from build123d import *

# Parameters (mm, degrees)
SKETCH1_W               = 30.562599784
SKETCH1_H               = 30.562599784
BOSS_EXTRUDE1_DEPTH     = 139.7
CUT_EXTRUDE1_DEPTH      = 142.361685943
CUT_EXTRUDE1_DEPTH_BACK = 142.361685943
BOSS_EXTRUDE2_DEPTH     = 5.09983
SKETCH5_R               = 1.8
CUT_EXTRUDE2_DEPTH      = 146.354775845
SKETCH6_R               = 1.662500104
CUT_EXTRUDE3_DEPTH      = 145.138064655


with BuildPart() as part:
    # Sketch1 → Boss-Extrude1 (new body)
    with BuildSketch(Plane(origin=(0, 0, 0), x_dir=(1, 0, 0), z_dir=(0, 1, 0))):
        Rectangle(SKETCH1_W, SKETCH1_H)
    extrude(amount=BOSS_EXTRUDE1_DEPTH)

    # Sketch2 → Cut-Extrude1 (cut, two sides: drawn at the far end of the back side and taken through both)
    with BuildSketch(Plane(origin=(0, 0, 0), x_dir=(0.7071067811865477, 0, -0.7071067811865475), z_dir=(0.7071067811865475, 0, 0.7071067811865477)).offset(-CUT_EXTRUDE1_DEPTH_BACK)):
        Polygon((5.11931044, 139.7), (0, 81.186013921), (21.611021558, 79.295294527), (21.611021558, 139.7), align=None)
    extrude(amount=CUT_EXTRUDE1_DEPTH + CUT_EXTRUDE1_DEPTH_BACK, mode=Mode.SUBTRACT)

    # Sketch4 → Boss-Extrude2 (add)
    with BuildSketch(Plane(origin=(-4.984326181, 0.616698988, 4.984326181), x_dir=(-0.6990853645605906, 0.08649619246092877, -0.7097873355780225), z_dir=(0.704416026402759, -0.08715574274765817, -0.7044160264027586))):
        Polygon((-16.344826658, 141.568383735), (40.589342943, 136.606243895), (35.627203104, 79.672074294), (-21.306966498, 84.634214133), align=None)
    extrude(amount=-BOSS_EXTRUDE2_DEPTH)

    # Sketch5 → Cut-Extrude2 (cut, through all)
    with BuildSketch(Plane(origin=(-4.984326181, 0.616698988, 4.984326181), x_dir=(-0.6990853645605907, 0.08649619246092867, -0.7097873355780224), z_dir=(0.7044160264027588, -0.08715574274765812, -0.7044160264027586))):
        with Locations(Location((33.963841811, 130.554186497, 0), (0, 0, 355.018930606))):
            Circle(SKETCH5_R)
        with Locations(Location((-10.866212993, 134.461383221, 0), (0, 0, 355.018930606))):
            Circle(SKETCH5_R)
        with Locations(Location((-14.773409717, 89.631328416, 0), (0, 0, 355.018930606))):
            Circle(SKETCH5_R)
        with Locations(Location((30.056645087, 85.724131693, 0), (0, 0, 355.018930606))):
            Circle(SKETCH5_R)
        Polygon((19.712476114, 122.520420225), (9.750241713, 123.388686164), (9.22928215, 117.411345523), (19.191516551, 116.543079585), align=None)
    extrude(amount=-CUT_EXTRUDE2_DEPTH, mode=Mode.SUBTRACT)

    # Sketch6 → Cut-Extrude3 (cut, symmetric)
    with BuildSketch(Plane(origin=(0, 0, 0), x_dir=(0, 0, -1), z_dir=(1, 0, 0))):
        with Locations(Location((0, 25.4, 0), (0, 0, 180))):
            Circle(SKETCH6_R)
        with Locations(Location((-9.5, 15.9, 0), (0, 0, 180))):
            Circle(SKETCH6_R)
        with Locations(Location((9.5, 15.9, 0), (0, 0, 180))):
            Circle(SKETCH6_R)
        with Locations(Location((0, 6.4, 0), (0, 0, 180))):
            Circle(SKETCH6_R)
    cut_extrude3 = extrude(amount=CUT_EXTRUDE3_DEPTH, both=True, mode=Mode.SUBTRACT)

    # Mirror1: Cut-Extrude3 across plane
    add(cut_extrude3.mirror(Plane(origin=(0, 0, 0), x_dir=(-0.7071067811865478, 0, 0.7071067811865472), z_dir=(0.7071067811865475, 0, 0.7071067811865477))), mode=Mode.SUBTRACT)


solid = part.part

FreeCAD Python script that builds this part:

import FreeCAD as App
import Part
import Sketcher
Q = App.Units.Quantity


def add_polygon(sketch, points):
    """Adds a closed chain of lines whose ends are joined by coincident constraints."""
    first, n = sketch.GeometryCount, len(points)
    for a, b in zip(points, points[1:] + points[:1]):
        sketch.addGeometry(Part.LineSegment(App.Vector(*a, 0), App.Vector(*b, 0)), False)
    for i in range(n):
        sketch.addConstraint(Sketcher.Constraint("Coincident", first + i, 2, first + (i + 1) % n, 1))

doc = App.newDocument("Part")
body = doc.addObject("PartDesign::Body", "Body")

# Sketch on XZ plane
sketch1 = doc.addObject("Sketcher::SketchObject", "Sketch")
body.addObject(sketch1)
sketch1.AttachmentSupport = (doc.XZ_Plane, [""])
sketch1.MapMode = "FlatFace"
add_polygon(sketch1, [(-15, -15), (-15, 15), (15, 15), (15, -15)])  # lines 0-3
sketch1.addConstraint(Sketcher.Constraint("Vertical", 0))
sketch1.addConstraint(Sketcher.Constraint("Horizontal", 1))
sketch1.addConstraint(Sketcher.Constraint("Vertical", 2))
sketch1.addConstraint(Sketcher.Constraint("Horizontal", 3))
sketch1.addConstraint(Sketcher.Constraint("Symmetric", 0, 2, 2, 2, -1, 1))
sketch1.addConstraint(Sketcher.Constraint("Equal", 3, 0))
sketch1.addConstraint(Sketcher.Constraint("DistanceX", 1, 1, 1, 2, 30.5626))
pad1 = doc.addObject("PartDesign::Pad", "Pad")
body.addObject(pad1)
pad1.Profile = sketch1
pad1.Length = 139.7
pad1.Reversed = True

# Sketch on an angled plane
sketch2 = doc.addObject("Sketcher::SketchObject", "Sketch001")
body.addObject(sketch2)
sketch2.Placement = App.Placement(App.Vector(0, 0, 0), App.Rotation(App.Vector(0.707106781, 0, -0.707106781), App.Vector(0, 0.999999999, 0), App.Vector(0.707106781, 0, 0.707106781), "ZXY"))
add_polygon(sketch2, [(5, 140), (0, 81), (22, 79), (22, 140)])  # lines 0-3
sketch2.addConstraint(Sketcher.Constraint("Vertical", 2))
sketch2.addConstraint(Sketcher.Constraint("Horizontal", 3))
sketch2.addConstraint(Sketcher.Constraint("PointOnObject", 0, 2, -2))
sketch2.addConstraint(Sketcher.Constraint("Perpendicular", 0, 1))
sketch2.addConstraint(Sketcher.Constraint("Angle", 0, Q("-95 deg")))
sketch2.addConstraint(Sketcher.Constraint("DistanceY", -1, 1, 2, 2, 139.7))
sketch2.addConstraint(Sketcher.Constraint("Distance", 0, 58.7375))
sketch2.addConstraint(Sketcher.Constraint("DistanceX", 3, 2, 3, 1, 16.491711))
pocket1 = doc.addObject("PartDesign::Pocket", "Pocket")
body.addObject(pocket1)
pocket1.Profile = sketch2
pocket1.Type = "ThroughAll"
pocket1.Midplane = True

# Sketch on an angled plane
sketch3 = doc.addObject("Sketcher::SketchObject", "Sketch002")
body.addObject(sketch3)
sketch3.Placement = App.Placement(App.Vector(-4.984326, 0.616699, 4.984326), App.Rotation(App.Vector(-0.699085365, 0.086496192, -0.709787336), App.Vector(0.122791346, 0.992432509, -0.000000001), App.Vector(0.704416026, -0.087155743, -0.704416026), "ZXY"))
add_polygon(sketch3, [(41, 137), (-16, 142), (-21, 85), (36, 80)])  # lines 0-3
sketch3.addConstraint(Sketcher.Constraint("Perpendicular", 0, 1))
sketch3.addConstraint(Sketcher.Constraint("Perpendicular", 1, 2))
sketch3.addConstraint(Sketcher.Constraint("Perpendicular", 2, 3))
sketch3.addConstraint(Sketcher.Constraint("Equal", 0, 1))
sketch3.addConstraint(Sketcher.Constraint("Distance", 0, 57.15))
sketch3.addConstraint(Sketcher.Constraint("DistanceX", 1, 2, 0, 2, 4.96214))
sketch3.addConstraint(Sketcher.Constraint("DistanceX", 0, 2, -1, 1, 16.344827))
sketch3.addConstraint(Sketcher.Constraint("DistanceY", -1, 1, 0, 2, 141.568384))
pad2 = doc.addObject("PartDesign::Pad", "Pad001")
body.addObject(pad2)
pad2.Profile = sketch3
pad2.Length = 5.09983
pad2.Reversed = True

# Sketch on an angled plane
sketch4 = doc.addObject("Sketcher::SketchObject", "Sketch003")
body.addObject(sketch4)
sketch4.Placement = App.Placement(App.Vector(-4.984326, 0.616699, 4.984326), App.Rotation(App.Vector(-0.699085365, 0.086496192, -0.709787336), App.Vector(0.122791346, 0.992432509, -0.000000001), App.Vector(0.704416026, -0.087155743, -0.704416026), "ZXY"))
sketch4.addGeometry(Part.Circle(App.Vector(34, 130.6, 0), App.Vector(0, 0, 1), 1.8), False)  # 0
sketch4.addGeometry(Part.Circle(App.Vector(-10.9, 134.5, 0), App.Vector(0, 0, 1), 1.8), False)  # 1
sketch4.addGeometry(Part.Circle(App.Vector(-14.8, 89.6, 0), App.Vector(0, 0, 1), 1.8), False)  # 2
sketch4.addGeometry(Part.Circle(App.Vector(30.1, 85.7, 0), App.Vector(0, 0, 1), 1.8), False)  # 3
add_polygon(sketch4, [(19.7, 122.5), (9.8, 123.4), (9.2, 117.4), (19.2, 116.5)])  # lines 4-7
sketch4.addConstraint(Sketcher.Constraint("Equal", 0, 1))
sketch4.addConstraint(Sketcher.Constraint("Equal", 1, 2))
sketch4.addConstraint(Sketcher.Constraint("Equal", 2, 3))
sketch4.addConstraint(Sketcher.Constraint("Perpendicular", 4, 5))
sketch4.addConstraint(Sketcher.Constraint("Perpendicular", 5, 6))
sketch4.addConstraint(Sketcher.Constraint("Perpendicular", 6, 7))
sketch4.addConstraint(Sketcher.Constraint("Diameter", 0, 3.6))
sketch4.addConstraint(Sketcher.Constraint("Distance", 4, 10.0))
sketch4.addConstraint(Sketcher.Constraint("Distance", 5, 6.0))
sketch4.addConstraint(Sketcher.Constraint("DistanceX", 4, 2, 0, 3, 24.2136))
sketch4.addConstraint(Sketcher.Constraint("DistanceY", 4, 2, 0, 3, 7.1655))
sketch4.addConstraint(Sketcher.Constraint("DistanceX", -1, 1, 0, 3, 33.963842))
sketch4.addConstraint(Sketcher.Constraint("DistanceX", 2, 3, -1, 1, 14.77341))
sketch4.addConstraint(Sketcher.Constraint("DistanceY", -1, 1, 2, 3, 89.631328))
sketch4.addConstraint(Sketcher.Constraint("DistanceY", -1, 1, 3, 3, 85.724132))
sketch4.addConstraint(Sketcher.Constraint("DistanceY", -1, 1, 6, 2, 116.54308))
sketch4.addConstraint(Sketcher.Constraint("DistanceY", -1, 1, 7, 2, 122.52042))
sketch4.addConstraint(Sketcher.Constraint("DistanceX", 1, 3, 3, 3, 40.922858))
sketch4.addConstraint(Sketcher.Constraint("DistanceY", 3, 3, 1, 3, 48.737252))
sketch4.addConstraint(Sketcher.Constraint("DistanceX", 6, 2, 3, 3, 10.865129))
pocket2 = doc.addObject("PartDesign::Pocket", "Pocket001")
body.addObject(pocket2)
pocket2.Profile = sketch4
pocket2.Type = "ThroughAll"

# Sketch on YZ plane
sketch5 = doc.addObject("Sketcher::SketchObject", "Sketch004")
body.addObject(sketch5)
sketch5.AttachmentSupport = (doc.YZ_Plane, [""])
sketch5.MapMode = "FlatFace"
sketch5.addGeometry(Part.Circle(App.Vector(25.4, 0, 0), App.Vector(0, 0, 1), 1.7), False)
sketch5.addGeometry(Part.Circle(App.Vector(15.9, 9.5, 0), App.Vector(0, 0, 1), 1.7), False)
sketch5.addGeometry(Part.Circle(App.Vector(15.9, -9.5, 0), App.Vector(0, 0, 1), 1.7), False)
sketch5.addGeometry(Part.Circle(App.Vector(6.4, 0, 0), App.Vector(0, 0, 1), 1.7), False)
sketch5.addConstraint(Sketcher.Constraint("Equal", 0, 1))
sketch5.addConstraint(Sketcher.Constraint("Equal", 1, 2))
sketch5.addConstraint(Sketcher.Constraint("Equal", 2, 3))
sketch5.addConstraint(Sketcher.Constraint("Symmetric", 1, 3, 2, 3, -1))
sketch5.addConstraint(Sketcher.Constraint("PointOnObject", 0, 3, -1))
sketch5.addConstraint(Sketcher.Constraint("PointOnObject", 3, 3, -1))
sketch5.addConstraint(Sketcher.Constraint("Diameter", 0, 3.325))
sketch5.addConstraint(Sketcher.Constraint("DistanceY", 2, 3, 1, 3, 19.0))
sketch5.addConstraint(Sketcher.Constraint("DistanceX", 3, 3, 0, 3, 19.0))
sketch5.addConstraint(Sketcher.Constraint("DistanceX", -1, 1, 0, 3, 25.4))
sketch5.addConstraint(Sketcher.Constraint("DistanceX", -1, 1, 1, 3, 15.9))
pocket3 = doc.addObject("PartDesign::Pocket", "Pocket002")
body.addObject(pocket3)
pocket3.Profile = sketch5
pocket3.Length = 290.276129
pocket3.Midplane = True
doc.recompute()

datumplane = doc.addObject("PartDesign::Plane", "DatumPlane")
body.addObject(datumplane)
datumplane.Placement = App.Placement(App.Vector(0, 0, 0), App.Rotation(App.Vector(-0.707106781, 0, 0.707106781), App.Vector(0, -1, 0), App.Vector(0.707106781, 0, 0.707106781), "ZXY"))
mirrored = doc.addObject("PartDesign::Mirrored", "Mirrored")
body.addObject(mirrored)
mirrored.Originals = [pocket3]
mirrored.MirrorPlane = (datumplane, [""])
body.Tip = mirrored

doc.recompute()
